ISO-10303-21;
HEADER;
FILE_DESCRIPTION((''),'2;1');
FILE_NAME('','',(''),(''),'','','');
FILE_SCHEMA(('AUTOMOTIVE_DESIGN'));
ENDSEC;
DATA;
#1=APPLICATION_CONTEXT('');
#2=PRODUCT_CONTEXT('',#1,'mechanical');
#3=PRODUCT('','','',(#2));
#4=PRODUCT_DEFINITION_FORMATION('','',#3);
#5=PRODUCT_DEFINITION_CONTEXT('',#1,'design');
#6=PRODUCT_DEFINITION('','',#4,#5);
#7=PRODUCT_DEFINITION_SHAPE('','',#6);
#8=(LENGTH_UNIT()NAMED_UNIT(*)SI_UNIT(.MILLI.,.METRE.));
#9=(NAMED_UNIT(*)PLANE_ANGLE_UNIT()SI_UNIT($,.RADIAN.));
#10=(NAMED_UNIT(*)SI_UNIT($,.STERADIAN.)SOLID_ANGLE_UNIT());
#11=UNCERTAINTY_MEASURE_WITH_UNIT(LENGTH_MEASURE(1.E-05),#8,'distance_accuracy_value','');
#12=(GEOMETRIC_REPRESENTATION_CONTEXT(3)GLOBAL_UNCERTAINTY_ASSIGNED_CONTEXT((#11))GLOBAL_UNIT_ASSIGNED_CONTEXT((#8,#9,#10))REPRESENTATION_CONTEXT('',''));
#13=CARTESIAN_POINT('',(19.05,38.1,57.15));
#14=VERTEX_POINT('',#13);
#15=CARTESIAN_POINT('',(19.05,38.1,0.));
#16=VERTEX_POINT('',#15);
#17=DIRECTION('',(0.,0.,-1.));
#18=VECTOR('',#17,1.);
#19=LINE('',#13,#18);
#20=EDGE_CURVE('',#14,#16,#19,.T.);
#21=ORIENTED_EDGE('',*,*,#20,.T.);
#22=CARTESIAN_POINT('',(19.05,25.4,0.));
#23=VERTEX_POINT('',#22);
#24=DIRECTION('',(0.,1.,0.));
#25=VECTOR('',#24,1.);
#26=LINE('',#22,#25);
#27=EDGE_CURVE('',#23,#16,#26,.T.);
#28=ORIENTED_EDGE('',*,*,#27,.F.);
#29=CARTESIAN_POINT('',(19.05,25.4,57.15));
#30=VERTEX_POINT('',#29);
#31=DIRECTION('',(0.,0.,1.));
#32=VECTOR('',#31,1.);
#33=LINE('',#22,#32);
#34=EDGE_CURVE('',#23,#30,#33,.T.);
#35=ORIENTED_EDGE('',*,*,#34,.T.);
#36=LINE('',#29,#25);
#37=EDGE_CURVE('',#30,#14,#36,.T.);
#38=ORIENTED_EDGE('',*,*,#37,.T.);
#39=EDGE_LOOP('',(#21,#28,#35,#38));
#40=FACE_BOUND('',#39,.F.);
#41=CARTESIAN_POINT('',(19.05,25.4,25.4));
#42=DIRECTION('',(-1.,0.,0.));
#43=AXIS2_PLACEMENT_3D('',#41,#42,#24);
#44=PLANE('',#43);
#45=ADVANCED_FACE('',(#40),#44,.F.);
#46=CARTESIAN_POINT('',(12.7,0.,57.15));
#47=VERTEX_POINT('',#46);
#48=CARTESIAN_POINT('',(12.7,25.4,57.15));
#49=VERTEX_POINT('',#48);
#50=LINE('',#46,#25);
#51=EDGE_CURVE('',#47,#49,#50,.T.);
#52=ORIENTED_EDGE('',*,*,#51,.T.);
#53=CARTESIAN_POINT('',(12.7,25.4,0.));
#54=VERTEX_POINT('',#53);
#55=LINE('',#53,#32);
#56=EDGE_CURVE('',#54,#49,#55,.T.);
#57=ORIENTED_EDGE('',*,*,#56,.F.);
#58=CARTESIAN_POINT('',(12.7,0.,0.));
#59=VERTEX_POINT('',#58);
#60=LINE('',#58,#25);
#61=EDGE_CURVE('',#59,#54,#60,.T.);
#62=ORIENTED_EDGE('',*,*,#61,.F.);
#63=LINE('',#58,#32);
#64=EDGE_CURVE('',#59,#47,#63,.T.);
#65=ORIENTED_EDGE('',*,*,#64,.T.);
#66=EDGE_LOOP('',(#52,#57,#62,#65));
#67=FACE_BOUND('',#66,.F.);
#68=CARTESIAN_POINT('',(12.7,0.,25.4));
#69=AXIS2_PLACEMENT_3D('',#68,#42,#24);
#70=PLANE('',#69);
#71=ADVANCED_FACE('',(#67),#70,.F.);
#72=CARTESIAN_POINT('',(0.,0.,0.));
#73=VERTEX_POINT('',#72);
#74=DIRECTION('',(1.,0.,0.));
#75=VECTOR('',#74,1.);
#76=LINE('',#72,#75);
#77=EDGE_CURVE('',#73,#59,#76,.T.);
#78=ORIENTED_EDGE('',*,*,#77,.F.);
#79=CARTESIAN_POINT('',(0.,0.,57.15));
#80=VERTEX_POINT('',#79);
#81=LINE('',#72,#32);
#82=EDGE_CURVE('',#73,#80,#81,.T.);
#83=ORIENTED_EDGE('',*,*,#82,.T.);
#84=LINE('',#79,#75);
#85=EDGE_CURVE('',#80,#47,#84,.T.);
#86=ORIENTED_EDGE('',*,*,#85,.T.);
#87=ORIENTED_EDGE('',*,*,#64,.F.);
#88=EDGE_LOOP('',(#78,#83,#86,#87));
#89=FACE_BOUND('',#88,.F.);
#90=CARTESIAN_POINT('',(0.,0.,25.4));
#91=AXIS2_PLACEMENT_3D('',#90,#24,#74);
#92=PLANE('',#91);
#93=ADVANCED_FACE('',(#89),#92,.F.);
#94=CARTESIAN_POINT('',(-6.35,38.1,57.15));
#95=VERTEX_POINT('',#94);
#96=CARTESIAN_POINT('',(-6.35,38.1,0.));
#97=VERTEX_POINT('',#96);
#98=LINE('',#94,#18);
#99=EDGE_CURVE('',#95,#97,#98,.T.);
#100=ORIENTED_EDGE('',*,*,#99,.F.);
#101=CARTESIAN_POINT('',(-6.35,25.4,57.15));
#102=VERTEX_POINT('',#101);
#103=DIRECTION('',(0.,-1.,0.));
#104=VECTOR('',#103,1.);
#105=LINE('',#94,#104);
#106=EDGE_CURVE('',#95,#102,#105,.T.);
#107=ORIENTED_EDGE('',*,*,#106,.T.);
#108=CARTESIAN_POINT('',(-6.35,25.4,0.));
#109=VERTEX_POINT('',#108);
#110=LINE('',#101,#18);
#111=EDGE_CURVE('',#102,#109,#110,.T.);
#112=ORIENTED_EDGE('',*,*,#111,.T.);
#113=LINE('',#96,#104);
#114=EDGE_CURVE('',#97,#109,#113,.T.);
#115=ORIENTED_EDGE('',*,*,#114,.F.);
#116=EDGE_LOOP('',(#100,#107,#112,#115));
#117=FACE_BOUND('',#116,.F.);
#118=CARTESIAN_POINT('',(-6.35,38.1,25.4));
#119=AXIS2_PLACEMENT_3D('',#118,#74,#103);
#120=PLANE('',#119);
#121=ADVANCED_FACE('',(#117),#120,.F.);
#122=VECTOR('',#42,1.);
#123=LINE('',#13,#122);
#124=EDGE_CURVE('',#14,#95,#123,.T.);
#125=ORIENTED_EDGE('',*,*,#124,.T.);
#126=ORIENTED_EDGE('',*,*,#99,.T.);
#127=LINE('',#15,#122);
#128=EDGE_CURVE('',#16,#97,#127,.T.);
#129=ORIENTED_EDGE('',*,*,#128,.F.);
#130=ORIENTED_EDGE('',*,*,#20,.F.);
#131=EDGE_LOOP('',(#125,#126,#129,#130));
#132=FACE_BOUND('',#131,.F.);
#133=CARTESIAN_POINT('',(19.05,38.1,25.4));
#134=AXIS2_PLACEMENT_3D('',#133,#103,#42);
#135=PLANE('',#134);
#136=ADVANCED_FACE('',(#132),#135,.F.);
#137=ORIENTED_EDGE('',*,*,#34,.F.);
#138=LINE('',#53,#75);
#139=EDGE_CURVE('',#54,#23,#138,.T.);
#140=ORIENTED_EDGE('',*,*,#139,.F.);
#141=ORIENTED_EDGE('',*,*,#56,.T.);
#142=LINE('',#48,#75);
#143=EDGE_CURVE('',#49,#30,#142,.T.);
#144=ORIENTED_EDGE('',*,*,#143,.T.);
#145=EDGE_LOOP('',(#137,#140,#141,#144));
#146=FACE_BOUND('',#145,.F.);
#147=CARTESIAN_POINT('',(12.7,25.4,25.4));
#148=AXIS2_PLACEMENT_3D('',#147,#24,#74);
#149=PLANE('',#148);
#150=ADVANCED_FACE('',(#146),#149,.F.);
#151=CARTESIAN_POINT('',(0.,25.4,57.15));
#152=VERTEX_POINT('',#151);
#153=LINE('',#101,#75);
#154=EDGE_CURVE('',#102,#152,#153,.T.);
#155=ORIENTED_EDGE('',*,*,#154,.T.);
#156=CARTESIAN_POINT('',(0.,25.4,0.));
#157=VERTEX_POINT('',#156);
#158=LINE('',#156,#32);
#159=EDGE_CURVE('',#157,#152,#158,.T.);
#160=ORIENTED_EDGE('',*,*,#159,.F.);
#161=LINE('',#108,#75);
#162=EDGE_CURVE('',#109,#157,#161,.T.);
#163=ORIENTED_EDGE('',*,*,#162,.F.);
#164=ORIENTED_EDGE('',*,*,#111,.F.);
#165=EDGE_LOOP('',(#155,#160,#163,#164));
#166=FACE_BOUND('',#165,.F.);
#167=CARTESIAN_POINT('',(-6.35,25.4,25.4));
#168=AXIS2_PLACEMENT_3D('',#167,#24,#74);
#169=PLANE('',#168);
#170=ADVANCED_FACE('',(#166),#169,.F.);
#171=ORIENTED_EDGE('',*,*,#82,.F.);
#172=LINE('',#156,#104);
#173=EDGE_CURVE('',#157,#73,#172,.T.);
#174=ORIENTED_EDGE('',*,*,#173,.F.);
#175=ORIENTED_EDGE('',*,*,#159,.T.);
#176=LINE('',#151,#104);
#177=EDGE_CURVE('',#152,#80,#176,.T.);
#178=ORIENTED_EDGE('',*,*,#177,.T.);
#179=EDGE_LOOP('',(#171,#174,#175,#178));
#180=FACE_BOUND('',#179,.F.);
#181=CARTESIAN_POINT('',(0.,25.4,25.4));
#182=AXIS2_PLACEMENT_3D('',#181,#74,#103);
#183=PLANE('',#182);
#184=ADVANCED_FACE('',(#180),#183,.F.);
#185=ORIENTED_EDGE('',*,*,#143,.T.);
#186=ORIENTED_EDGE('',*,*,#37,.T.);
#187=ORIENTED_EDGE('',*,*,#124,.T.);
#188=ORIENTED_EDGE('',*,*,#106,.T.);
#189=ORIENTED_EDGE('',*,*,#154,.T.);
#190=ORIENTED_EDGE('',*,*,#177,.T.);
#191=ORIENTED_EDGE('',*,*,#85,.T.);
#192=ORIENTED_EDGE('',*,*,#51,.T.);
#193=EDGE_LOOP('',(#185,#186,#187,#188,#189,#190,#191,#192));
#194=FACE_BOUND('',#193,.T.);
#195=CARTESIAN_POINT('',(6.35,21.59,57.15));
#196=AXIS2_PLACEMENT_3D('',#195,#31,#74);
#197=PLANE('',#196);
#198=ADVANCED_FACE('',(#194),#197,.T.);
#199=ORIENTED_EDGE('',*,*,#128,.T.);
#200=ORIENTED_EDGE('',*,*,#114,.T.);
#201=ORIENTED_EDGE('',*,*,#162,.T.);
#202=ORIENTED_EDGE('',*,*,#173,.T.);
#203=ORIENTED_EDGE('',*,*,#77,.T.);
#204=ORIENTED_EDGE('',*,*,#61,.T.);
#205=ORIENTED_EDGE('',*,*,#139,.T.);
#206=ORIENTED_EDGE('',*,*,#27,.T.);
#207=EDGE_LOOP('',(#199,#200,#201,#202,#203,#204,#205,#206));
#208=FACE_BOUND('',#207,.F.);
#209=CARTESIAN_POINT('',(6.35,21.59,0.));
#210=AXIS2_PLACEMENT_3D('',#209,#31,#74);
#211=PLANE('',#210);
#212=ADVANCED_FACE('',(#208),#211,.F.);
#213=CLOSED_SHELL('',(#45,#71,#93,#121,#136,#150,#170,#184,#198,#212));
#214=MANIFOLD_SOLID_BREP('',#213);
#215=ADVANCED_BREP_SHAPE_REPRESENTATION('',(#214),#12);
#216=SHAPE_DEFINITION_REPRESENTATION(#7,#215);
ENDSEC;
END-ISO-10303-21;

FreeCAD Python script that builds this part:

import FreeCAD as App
import Part
import Sketcher
from FreeCAD import Vector
Q = App.Units.Quantity


def add_polygon(sketch, points):
    """Adds a closed chain of lines whose ends are joined by coincident constraints."""
    first, n = sketch.GeometryCount, len(points)
    for a, b in zip(points, points[1:] + points[:1]):
        sketch.addGeometry(Part.LineSegment(App.Vector(*a, 0), App.Vector(*b, 0)), False)
    for i in range(n):
        sketch.addConstraint(Sketcher.Constraint("Coincident", first + i, 2, first + (i + 1) % n, 1))

doc = App.newDocument("Part")
body = doc.addObject("PartDesign::Body", "Body")

# Sketch on XY plane
sketch1 = body.newObject("Sketcher::SketchObject", "Sketch")
sketch1.AttachmentSupport = (doc.getObject("XY_Plane"), [""])
sketch1.MapMode = "FlatFace"
add_polygon(sketch1, [(0, 25), (0, 0), (13, 0), (13, 25), (19, 25), (19, 38), (-6, 38), (-6, 25)])  # lines 0-7
sketch1.addConstraint(Sketcher.Constraint("Vertical", 0))
sketch1.addConstraint(Sketcher.Constraint("Horizontal", 1))
sketch1.addConstraint(Sketcher.Constraint("Vertical", 2))
sketch1.addConstraint(Sketcher.Constraint("Horizontal", 3))
sketch1.addConstraint(Sketcher.Constraint("Vertical", 4))
sketch1.addConstraint(Sketcher.Constraint("Horizontal", 5))
sketch1.addConstraint(Sketcher.Constraint("Vertical", 6))
sketch1.addConstraint(Sketcher.Constraint("Horizontal", 7))
sketch1.addConstraint(Sketcher.Constraint("Coincident", 0, 2, -1, 1))
sketch1.addConstraint(Sketcher.Constraint("Horizontal", 3, 2, 6, 2))
sketch1.addConstraint(Sketcher.Constraint("Equal", 3, 7))
sketch1.addConstraint(Sketcher.Constraint("Equal", 5, 0))
sketch1.addConstraint(Sketcher.Constraint("Equal", 1, 4))
sketch1.addConstraint(Sketcher.Constraint("DistanceX", 5, 2, 5, 1, Q("1 in")))
sketch1.addConstraint(Sketcher.Constraint("DistanceX", 1, 1, 1, 2, Q("0.5 in")))
pad1 = body.newObject("PartDesign::Pad", "Pad")
pad1.Profile = sketch1
pad1.Length = Q("1 in")

# Sketch on XY plane
sketch2 = body.newObject("Sketcher::SketchObject", "Sketch001")
sketch2.AttachmentSupport = (doc.getObject("XY_Plane"), [""])
sketch2.MapMode = "FlatFace"
sketch2.AttachmentOffset = App.Placement(Vector(0, 0, 1 * 25.4), App.Rotation())
add_polygon(sketch2, [(-6, 25), (0, 25), (0, 0), (13, 0), (13, 25), (19, 25), (19, 38), (-6, 38)])  # lines 0-7
sketch2.addConstraint(Sketcher.Constraint("Horizontal", 0))
sketch2.addConstraint(Sketcher.Constraint("Vertical", 1))
sketch2.addConstraint(Sketcher.Constraint("Horizontal", 2))
sketch2.addConstraint(Sketcher.Constraint("Vertical", 3))
sketch2.addConstraint(Sketcher.Constraint("Horizontal", 4))
sketch2.addConstraint(Sketcher.Constraint("Vertical", 5))
sketch2.addConstraint(Sketcher.Constraint("Horizontal", 6))
sketch2.addConstraint(Sketcher.Constraint("Vertical", 7))
sketch2.addConstraint(Sketcher.Constraint("Coincident", 1, 2, -1, 1))
sketch2.addConstraint(Sketcher.Constraint("Horizontal", 0, 2, 3, 2))
sketch2.addConstraint(Sketcher.Constraint("Equal", 0, 4))
sketch2.addConstraint(Sketcher.Constraint("Equal", 6, 1))
sketch2.addConstraint(Sketcher.Constraint("Equal", 2, 5))
sketch2.addConstraint(Sketcher.Constraint("DistanceX", 6, 2, 6, 1, Q("1 in")))
sketch2.addConstraint(Sketcher.Constraint("DistanceX", 2, 1, 2, 2, Q("0.5 in")))
pad2 = body.newObject("PartDesign::Pad", "Pad001")
pad2.Profile = sketch2
pad2.Length = Q("1.25 in")

doc.recompute()
